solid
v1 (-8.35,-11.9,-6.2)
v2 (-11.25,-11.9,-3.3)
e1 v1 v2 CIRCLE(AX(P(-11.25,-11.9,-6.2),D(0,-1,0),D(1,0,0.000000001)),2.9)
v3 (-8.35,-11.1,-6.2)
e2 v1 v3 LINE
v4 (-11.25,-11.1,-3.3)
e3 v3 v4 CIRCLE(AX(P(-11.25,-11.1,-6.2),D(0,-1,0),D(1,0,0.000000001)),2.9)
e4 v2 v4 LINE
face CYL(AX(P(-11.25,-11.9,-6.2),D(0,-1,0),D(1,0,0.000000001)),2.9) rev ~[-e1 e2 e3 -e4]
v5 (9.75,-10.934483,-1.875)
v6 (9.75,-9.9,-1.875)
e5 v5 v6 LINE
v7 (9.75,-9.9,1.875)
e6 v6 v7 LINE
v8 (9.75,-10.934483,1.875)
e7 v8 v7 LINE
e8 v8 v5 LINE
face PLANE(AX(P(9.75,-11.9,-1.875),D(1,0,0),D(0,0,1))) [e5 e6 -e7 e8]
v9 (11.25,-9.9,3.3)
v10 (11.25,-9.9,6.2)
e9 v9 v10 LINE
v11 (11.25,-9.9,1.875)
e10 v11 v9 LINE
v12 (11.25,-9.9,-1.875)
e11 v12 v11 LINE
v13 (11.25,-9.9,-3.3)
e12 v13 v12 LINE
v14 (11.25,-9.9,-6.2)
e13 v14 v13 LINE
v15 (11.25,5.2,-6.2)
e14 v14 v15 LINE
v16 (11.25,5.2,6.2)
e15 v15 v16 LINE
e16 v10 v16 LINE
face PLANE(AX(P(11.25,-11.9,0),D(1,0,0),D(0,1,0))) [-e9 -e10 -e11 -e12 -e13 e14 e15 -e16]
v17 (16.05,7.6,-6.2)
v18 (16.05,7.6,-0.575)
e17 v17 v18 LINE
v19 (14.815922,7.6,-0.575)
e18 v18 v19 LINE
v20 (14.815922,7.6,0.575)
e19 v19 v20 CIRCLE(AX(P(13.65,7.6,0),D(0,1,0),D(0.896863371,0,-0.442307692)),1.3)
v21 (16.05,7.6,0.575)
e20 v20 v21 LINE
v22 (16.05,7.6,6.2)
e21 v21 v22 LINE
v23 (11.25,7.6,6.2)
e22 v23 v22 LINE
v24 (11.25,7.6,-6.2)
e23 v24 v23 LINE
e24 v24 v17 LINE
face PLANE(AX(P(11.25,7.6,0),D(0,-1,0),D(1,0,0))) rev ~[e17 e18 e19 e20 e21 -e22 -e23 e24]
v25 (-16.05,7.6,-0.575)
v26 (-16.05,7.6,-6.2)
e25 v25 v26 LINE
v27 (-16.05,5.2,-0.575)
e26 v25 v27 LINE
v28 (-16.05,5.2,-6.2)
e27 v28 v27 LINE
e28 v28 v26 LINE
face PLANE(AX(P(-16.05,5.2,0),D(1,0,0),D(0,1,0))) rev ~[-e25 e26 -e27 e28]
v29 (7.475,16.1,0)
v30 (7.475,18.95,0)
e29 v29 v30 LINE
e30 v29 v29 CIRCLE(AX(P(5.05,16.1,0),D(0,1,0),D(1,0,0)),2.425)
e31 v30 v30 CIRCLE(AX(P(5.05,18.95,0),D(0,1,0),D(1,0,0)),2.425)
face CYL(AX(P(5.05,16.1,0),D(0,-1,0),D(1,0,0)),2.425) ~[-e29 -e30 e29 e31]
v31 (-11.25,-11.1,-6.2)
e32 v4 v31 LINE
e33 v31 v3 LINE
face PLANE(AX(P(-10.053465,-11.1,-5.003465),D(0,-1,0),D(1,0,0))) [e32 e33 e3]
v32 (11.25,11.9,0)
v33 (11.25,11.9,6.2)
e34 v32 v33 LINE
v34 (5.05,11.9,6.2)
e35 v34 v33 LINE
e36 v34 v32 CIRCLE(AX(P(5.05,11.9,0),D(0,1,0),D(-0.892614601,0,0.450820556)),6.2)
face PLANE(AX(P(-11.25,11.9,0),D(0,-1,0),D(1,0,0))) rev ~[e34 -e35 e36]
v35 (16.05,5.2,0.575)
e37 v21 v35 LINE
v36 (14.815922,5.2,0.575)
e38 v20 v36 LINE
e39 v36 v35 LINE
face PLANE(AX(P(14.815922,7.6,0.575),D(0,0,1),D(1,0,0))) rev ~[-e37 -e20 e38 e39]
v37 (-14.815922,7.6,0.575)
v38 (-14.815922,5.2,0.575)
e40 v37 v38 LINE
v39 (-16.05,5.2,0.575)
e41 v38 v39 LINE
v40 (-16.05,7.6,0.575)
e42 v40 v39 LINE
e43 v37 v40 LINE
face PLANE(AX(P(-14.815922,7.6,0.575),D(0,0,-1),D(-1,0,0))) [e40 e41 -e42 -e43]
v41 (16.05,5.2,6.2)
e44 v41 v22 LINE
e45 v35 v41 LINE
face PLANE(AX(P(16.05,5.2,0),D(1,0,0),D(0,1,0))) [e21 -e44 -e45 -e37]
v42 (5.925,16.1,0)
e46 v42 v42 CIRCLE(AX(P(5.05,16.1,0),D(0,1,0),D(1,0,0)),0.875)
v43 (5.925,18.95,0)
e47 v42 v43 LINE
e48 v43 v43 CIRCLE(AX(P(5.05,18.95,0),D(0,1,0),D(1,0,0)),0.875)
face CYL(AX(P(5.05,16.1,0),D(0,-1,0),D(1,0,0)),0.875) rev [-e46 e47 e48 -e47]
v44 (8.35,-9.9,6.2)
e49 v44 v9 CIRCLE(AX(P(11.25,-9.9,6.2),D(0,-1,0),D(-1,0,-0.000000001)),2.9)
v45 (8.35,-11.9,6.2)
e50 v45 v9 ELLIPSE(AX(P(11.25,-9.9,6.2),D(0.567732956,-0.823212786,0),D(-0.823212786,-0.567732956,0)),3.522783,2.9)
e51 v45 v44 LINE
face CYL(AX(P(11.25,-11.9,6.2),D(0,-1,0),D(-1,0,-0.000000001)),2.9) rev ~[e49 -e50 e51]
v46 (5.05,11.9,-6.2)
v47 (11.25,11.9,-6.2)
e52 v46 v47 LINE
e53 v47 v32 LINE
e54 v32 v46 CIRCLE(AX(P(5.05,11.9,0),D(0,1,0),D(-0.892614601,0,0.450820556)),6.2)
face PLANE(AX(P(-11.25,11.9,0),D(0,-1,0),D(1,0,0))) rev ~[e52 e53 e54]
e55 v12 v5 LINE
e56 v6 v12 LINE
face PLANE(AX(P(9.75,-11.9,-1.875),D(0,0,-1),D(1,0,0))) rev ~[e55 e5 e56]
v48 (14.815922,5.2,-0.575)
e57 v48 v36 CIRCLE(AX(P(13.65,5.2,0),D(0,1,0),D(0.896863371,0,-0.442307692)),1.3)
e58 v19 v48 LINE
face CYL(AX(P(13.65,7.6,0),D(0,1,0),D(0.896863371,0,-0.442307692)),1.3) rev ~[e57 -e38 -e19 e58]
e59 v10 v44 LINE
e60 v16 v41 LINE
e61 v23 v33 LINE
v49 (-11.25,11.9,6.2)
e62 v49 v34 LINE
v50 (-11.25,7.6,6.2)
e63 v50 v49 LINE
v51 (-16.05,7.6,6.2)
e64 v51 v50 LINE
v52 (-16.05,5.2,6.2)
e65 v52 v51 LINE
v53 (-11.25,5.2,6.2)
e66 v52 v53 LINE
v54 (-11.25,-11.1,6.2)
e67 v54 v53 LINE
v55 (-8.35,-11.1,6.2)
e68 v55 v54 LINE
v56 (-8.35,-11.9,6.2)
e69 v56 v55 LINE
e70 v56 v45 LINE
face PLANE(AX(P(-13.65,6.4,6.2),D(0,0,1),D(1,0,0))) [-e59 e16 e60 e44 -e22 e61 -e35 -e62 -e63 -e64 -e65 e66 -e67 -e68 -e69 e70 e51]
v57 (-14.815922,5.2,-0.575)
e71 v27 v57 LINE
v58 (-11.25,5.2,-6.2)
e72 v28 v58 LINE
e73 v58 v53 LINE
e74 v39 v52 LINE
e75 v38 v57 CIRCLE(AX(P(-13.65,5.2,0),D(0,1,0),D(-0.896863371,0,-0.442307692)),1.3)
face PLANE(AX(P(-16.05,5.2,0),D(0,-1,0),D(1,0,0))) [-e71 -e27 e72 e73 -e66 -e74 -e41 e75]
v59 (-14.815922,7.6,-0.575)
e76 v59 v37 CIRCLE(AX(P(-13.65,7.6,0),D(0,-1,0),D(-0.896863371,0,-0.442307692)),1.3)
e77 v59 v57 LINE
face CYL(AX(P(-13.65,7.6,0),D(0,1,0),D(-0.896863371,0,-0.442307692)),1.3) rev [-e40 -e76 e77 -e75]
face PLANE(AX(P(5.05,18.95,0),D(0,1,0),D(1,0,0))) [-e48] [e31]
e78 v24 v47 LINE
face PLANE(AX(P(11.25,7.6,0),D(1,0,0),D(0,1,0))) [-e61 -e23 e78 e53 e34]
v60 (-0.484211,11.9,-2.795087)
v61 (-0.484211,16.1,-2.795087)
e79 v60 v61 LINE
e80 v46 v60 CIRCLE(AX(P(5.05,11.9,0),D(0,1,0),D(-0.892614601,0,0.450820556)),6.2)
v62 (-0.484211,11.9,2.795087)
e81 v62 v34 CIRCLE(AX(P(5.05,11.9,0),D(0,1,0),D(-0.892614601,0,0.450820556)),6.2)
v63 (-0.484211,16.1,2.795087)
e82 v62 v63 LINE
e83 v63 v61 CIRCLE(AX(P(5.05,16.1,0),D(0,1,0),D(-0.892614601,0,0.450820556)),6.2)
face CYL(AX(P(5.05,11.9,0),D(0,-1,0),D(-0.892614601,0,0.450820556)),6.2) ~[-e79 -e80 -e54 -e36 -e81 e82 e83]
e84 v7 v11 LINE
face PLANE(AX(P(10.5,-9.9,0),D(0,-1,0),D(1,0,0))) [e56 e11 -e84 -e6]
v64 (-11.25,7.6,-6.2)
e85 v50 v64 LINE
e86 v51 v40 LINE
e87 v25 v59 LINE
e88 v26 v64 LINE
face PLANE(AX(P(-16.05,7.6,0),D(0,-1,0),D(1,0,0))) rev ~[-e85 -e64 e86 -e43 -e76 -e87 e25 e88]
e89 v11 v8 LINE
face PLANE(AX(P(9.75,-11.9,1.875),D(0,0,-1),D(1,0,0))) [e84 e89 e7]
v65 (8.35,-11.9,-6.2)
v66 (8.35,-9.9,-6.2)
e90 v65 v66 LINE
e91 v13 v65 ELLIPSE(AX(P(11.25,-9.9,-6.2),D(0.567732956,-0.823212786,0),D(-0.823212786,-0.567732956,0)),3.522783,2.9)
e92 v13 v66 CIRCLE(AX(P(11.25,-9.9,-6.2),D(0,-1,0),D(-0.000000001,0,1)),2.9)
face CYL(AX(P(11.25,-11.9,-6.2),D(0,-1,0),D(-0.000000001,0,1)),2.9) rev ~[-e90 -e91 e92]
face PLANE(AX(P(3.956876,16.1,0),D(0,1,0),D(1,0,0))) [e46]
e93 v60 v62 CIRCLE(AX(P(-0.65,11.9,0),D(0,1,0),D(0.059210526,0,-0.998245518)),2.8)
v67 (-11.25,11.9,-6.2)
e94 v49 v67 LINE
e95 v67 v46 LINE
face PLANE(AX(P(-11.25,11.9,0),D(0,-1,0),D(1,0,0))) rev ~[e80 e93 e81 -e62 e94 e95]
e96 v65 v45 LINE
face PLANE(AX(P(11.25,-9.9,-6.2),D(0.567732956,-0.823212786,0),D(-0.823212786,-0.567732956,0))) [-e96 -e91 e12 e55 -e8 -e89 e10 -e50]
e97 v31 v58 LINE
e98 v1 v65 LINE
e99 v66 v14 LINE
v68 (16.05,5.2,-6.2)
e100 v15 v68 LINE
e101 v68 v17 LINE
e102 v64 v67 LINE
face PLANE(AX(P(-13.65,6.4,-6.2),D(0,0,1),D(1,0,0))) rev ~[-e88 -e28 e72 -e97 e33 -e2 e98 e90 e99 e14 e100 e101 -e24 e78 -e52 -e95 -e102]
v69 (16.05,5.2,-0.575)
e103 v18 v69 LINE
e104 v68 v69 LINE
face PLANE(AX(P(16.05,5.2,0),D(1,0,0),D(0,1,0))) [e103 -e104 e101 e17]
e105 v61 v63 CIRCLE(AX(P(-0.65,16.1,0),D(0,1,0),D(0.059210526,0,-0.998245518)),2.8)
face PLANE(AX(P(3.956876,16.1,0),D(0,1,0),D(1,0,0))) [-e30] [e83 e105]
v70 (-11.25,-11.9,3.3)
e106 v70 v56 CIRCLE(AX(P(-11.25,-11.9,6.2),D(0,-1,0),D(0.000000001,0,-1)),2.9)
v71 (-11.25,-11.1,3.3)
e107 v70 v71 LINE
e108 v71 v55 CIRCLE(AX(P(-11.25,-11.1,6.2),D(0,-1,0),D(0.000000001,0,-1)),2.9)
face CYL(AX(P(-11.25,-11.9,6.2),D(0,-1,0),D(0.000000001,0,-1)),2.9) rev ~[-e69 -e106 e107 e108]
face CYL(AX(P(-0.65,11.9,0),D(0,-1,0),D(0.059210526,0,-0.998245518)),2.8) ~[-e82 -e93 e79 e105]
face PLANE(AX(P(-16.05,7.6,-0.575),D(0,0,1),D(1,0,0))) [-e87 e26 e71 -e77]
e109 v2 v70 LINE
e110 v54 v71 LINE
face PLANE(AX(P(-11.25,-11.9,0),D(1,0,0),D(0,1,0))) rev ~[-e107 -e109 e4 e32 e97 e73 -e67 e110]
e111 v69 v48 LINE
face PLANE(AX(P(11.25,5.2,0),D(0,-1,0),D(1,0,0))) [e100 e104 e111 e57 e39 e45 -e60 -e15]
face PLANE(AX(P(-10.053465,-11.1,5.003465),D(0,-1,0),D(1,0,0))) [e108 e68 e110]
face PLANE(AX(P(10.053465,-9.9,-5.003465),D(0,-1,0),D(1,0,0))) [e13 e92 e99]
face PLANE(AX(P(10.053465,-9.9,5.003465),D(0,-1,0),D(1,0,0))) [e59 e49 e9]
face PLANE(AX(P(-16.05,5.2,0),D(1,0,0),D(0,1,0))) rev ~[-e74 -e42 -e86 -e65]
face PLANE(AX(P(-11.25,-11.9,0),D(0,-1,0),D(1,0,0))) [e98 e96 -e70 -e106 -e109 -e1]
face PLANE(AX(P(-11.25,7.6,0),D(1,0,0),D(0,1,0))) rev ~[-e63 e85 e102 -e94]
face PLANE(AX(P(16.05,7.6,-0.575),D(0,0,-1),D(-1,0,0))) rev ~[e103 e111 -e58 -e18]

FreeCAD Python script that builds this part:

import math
import FreeCAD as App
import Part
import Sketcher

V = App.Vector


def add_polygon(sketch, points):
    """Adds a closed chain of lines whose ends are joined by coincident constraints."""
    first, n = sketch.GeometryCount, len(points)
    for a, b in zip(points, points[1:] + points[:1]):
        sketch.addGeometry(Part.LineSegment(App.Vector(*a, 0), App.Vector(*b, 0)), False)
    for i in range(n):
        sketch.addConstraint(Sketcher.Constraint("Coincident", first + i, 2, first + (i + 1) % n, 1))

doc = App.newDocument("Part")
params = doc.addObject("Spreadsheet::Sheet", "Params")
for row, (alias, value) in enumerate([
    ("sketch1_width", "4.8 mm"),
    ("sketch1_width2", "22.5 mm"),
    ("sketch1_height", "2.4 mm"),
    ("sketch1_height2", "17.1 mm"),
    ("sketch1_height3", "4.3 mm"),
    ("pad1_length", "12.4 mm"),
    ("sketch2_radius", "6.2 mm"),
    ("sketch2_radius2", "2.8 mm"),
    ("pad2_length", "4.2 mm"),
    ("sketch3_radius", "1.3 mm"),
    ("sketch3_height", "1.15 mm"),
    ("sketch4_radius", "1.3 mm"),
    ("sketch4_height", "1.15 mm"),
    ("sketch5_radius", "2.9 mm"),
    ("pocket3_length", "0.8 mm"),
    ("sketch6_radius", "2.9 mm"),
    ("sketch6_width", "1.5 mm"),
    ("sketch6_height", "3.75 mm"),
    ("pocket4_length", "2 mm"),
    ("sketch7_height", "2 mm"),
    ("sketch7_width", "2.9 mm"),
    ("sketch8_diameter", "4.85 mm"),
    ("sketch8_diameter2", "1.75 mm"),
    ("pad3_length", "2.85 mm"),
], start=1):
    params.set(f"A{row}", alias)
    params.set(f"B{row}", "=" + value)
    params.setAlias(f"B{row}", alias)

body = doc.addObject("PartDesign::Body", "Body")

sketch1 = body.newObject("Sketcher::SketchObject", "Sketch")
sketch1.AttachmentSupport = (doc.getObject("XY_Plane"), [""])
sketch1.MapMode = "FlatFace"
add_polygon(sketch1, [(-16.1, 7.6), (-16.1, 5.2), (-11.2, 5.2), (-11.2, -11.9), (11.2, -11.9), (11.2, 5.2), (16.1, 5.2), (16.1, 7.6), (11.2, 7.6), (11.2, 11.9), (-11.2, 11.9), (-11.2, 7.6)])
sketch1.addConstraint([
    Sketcher.Constraint("Vertical", 0),
    Sketcher.Constraint("Horizontal", 1),
    Sketcher.Constraint("Vertical", 2),
    Sketcher.Constraint("Horizontal", 3),
    Sketcher.Constraint("Vertical", 4),
    Sketcher.Constraint("Horizontal", 5),
    Sketcher.Constraint("Vertical", 6),
    Sketcher.Constraint("Horizontal", 7),
    Sketcher.Constraint("Vertical", 8),
    Sketcher.Constraint("Horizontal", 9),
    Sketcher.Constraint("Vertical", 10),
    Sketcher.Constraint("Horizontal", 11),
    Sketcher.Constraint("Symmetric", 2, 2, 8, 2, -1, 1),
    Sketcher.Constraint("Symmetric", 1, 2, 4, 2, -2),
    Sketcher.Constraint("Symmetric", 7, 2, 10, 2, -2),
    Sketcher.Constraint("Equal", 1, 5),
    Sketcher.Constraint("DistanceX", 1, 1, 1, 2, 4.8),
    Sketcher.Constraint("DistanceX", 3, 1, 3, 2, 22.5),
    Sketcher.Constraint("DistanceY", 0, 2, 0, 1, 2.4),
    Sketcher.Constraint("DistanceY", 2, 2, 2, 1, 17.1),
    Sketcher.Constraint("DistanceY", 8, 1, 8, 2, 4.3),
])
sketch1.setExpression("Constraints[28]", "Params.sketch1_width")
sketch1.setExpression("Constraints[29]", "Params.sketch1_width2")
sketch1.setExpression("Constraints[30]", "Params.sketch1_height")
sketch1.setExpression("Constraints[31]", "Params.sketch1_height2")
sketch1.setExpression("Constraints[32]", "Params.sketch1_height3")
pad1 = body.newObject("PartDesign::Pad", "Pad")
pad1.Profile = sketch1
pad1.setExpression("Length", "Params.pad1_length")
pad1.Midplane = True

sketch2 = body.newObject("Sketcher::SketchObject", "Sketch001")
sketch2.AttachmentSupport = (doc.getObject("XZ_Plane"), [""])
sketch2.MapMode = "FlatFace"
sketch2.AttachmentOffset = App.Placement(V(0, 0, -11.9), App.Rotation())
sketch2.addGeometry([
    Part.ArcOfCircle(Part.Circle(V(5, 0, 0), V(0, 0, 1), 6.2), math.radians(-153), math.radians(153)),
    Part.ArcOfCircle(Part.Circle(V(-0.7, 0, 0), V(0, 0, 1), 2.8), math.radians(87), math.radians(273)),
], False)
sketch2.addConstraint([
    Sketcher.Constraint("Coincident", 0, 1, 1, 2),
    Sketcher.Constraint("Coincident", 1, 1, 0, 2),
    Sketcher.Constraint("Symmetric", 0, 1, 1, 1, -1),
    Sketcher.Constraint("Radius", 0, 6.2),
    Sketcher.Constraint("Radius", 1, 2.8),
    Sketcher.Constraint("DistanceX", 1, 3, 0, 3, 5.7),
    Sketcher.Constraint("DistanceX", -1, 1, 0, 3, 5.05),
])
sketch2.setExpression("Constraints[3]", "Params.sketch2_radius")
sketch2.setExpression("Constraints[4]", "Params.sketch2_radius2")
pad2 = body.newObject("PartDesign::Pad", "Pad001")
pad2.Profile = sketch2
pad2.setExpression("Length", "Params.pad2_length")
pad2.Reversed = True

sketch3 = body.newObject("Sketcher::SketchObject", "Sketch002")
sketch3.AttachmentSupport = (doc.getObject("XZ_Plane"), [""])
sketch3.MapMode = "FlatFace"
sketch3.AttachmentOffset = App.Placement(V(0, 0, -7.6), App.Rotation())
sketch3.addGeometry([
    Part.LineSegment(V(16.1, -0.6, 0), V(14.8, -0.6, 0)),
    Part.ArcOfCircle(Part.Circle(V(13.7, 0, 0), V(0, 0, 1), 1.3), math.radians(26), math.radians(334)),
    Part.LineSegment(V(14.8, 0.6, 0), V(16.1, 0.6, 0)),
    Part.LineSegment(V(16.1, 0.6, 0), V(16.1, -0.6, 0)),
], False)
sketch3.addConstraint([
    Sketcher.Constraint("Coincident", 0, 2, 1, 2),
    Sketcher.Constraint("Coincident", 1, 1, 2, 1),
    Sketcher.Constraint("Coincident", 2, 2, 3, 1),
    Sketcher.Constraint("Coincident", 3, 2, 0, 1),
    Sketcher.Constraint("Horizontal", 0),
    Sketcher.Constraint("Horizontal", 2),
    Sketcher.Constraint("Vertical", 3),
    Sketcher.Constraint("Symmetric", 0, 2, 1, 1, -1),
    Sketcher.Constraint("Radius", 1, 1.3),
    Sketcher.Constraint("DistanceY", 3, 2, 3, 1, 1.15),
    Sketcher.Constraint("DistanceX", 1, 3, 2, 2, 2.4),
    Sketcher.Constraint("DistanceX", -1, 1, 1, 3, 13.65),
])
sketch3.setExpression("Constraints[8]", "Params.sketch3_radius")
sketch3.setExpression("Constraints[9]", "Params.sketch3_height")
pocket1 = body.newObject("PartDesign::Pocket", "Pocket")
pocket1.Profile = sketch3
pocket1.Type = "UpToFirst"
pocket1.Reversed = True

sketch4 = body.newObject("Sketcher::SketchObject", "Sketch003")
sketch4.AttachmentSupport = (doc.getObject("XZ_Plane"), [""])
sketch4.MapMode = "FlatFace"
sketch4.AttachmentOffset = App.Placement(V(0, 0, -7.6), App.Rotation())
sketch4.addGeometry([
    Part.LineSegment(V(-14.8, -0.6, 0), V(-16.1, -0.6, 0)),
    Part.LineSegment(V(-16.1, -0.6, 0), V(-16.1, 0.6, 0)),
    Part.LineSegment(V(-16.1, 0.6, 0), V(-14.8, 0.6, 0)),
    Part.ArcOfCircle(Part.Circle(V(-13.7, 0, 0), V(0, 0, 1), 1.3), math.radians(-154), math.radians(154)),
], False)
sketch4.addConstraint([
    Sketcher.Constraint("Coincident", 0, 2, 1, 1),
    Sketcher.Constraint("Coincident", 1, 2, 2, 1),
    Sketcher.Constraint("Coincident", 2, 2, 3, 2),
    Sketcher.Constraint("Coincident", 3, 1, 0, 1),
    Sketcher.Constraint("Horizontal", 0),
    Sketcher.Constraint("Vertical", 1),
    Sketcher.Constraint("Horizontal", 2),
    Sketcher.Constraint("Symmetric", 2, 2, 3, 1, -1),
    Sketcher.Constraint("Radius", 3, 1.3),
    Sketcher.Constraint("DistanceY", 1, 1, 1, 2, 1.15),
    Sketcher.Constraint("DistanceX", 0, 2, 3, 3, 2.4),
    Sketcher.Constraint("DistanceX", 3, 3, -1, 1, 13.65),
])
sketch4.setExpression("Constraints[8]", "Params.sketch4_radius")
sketch4.setExpression("Constraints[9]", "Params.sketch4_height")
pocket2 = body.newObject("PartDesign::Pocket", "Pocket001")
pocket2.Profile = sketch4
pocket2.Type = "UpToFirst"
pocket2.Reversed = True

sketch5 = body.newObject("Sketcher::SketchObject", "Sketch004")
sketch5.AttachmentSupport = (doc.getObject("XZ_Plane"), [""])
sketch5.MapMode = "FlatFace"
sketch5.AttachmentOffset = App.Placement(V(0, 0, 11.9), App.Rotation())
sketch5.addGeometry([
    Part.LineSegment(V(-11.2, 6.2, 0), V(-11.2, 3.3, 0)),
    Part.ArcOfCircle(Part.Circle(V(-11.3, 6.2, 0), V(0, 0, 1), 2.9), math.radians(-90), math.radians(0)),
    Part.LineSegment(V(-8.3, 6.2, 0), V(-11.2, 6.2, 0)),
    Part.ArcOfCircle(Part.Circle(V(-11.3, -6.2, 0), V(0, 0, 1), 2.9), math.radians(0), math.radians(90)),
    Part.LineSegment(V(-11.2, -3.3, 0), V(-11.2, -6.2, 0)),
    Part.LineSegment(V(-11.2, -6.2, 0), V(-8.3, -6.2, 0)),
], False)
sketch5.addConstraint([
    Sketcher.Constraint("Coincident", 0, 2, 1, 1),
    Sketcher.Constraint("Coincident", 1, 2, 2, 1),
    Sketcher.Constraint("Coincident", 2, 2, 0, 1),
    Sketcher.Constraint("Coincident", 3, 2, 4, 1),
    Sketcher.Constraint("Coincident", 4, 2, 5, 1),
    Sketcher.Constraint("Coincident", 5, 2, 3, 1),
    Sketcher.Constraint("Vertical", 0),
    Sketcher.Constraint("Horizontal", 2),
    Sketcher.Constraint("Vertical", 4),
    Sketcher.Constraint("Horizontal", 5),
    Sketcher.Constraint("Coincident", 2, 2, 1, 3),
    Sketcher.Constraint("Coincident", 4, 2, 3, 3),
    Sketcher.Constraint("Equal", 1, 3),
    Sketcher.Constraint("Symmetric", 1, 3, 3, 3, -1),
    Sketcher.Constraint("Radius", 1, 2.9),
    Sketcher.Constraint("DistanceY", -1, 1, 1, 3, 6.2),
    Sketcher.Constraint("DistanceX", 1, 3, -1, 1, 11.25),
])
sketch5.setExpression("Constraints[14]", "Params.sketch5_radius")
pocket3 = body.newObject("PartDesign::Pocket", "Pocket002")
pocket3.Profile = sketch5
pocket3.setExpression("Length", "Params.pocket3_length")

sketch6 = body.newObject("Sketcher::SketchObject", "Sketch005")
sketch6.AttachmentSupport = (doc.getObject("XZ_Plane"), [""])
sketch6.MapMode = "FlatFace"
sketch6.AttachmentOffset = App.Placement(V(0, 0, 11.9), App.Rotation())
sketch6.addGeometry(Part.LineSegment(V(11.2, 6.2, 0), V(8.3, 6.2, 0)), False)
sketch6.addGeometry(Part.ArcOfCircle(Part.Circle(V(11.3, 6.2, 0), V(0, 0, 1), 2.9), math.radians(-180), math.radians(-90)), False)
sketch6.addGeometry(Part.LineSegment(V(11.2, 3.3, 0), V(11.2, 6.2, 0)), False)
sketch6.addGeometry(Part.ArcOfCircle(Part.Circle(V(11.3, -6.2, 0), V(0, 0, 1), 2.9), math.radians(90), math.radians(180)), False)
sketch6.addGeometry(Part.LineSegment(V(8.3, -6.2, 0), V(11.2, -6.2, 0)), False)
sketch6.addGeometry(Part.LineSegment(V(11.2, -6.2, 0), V(11.2, -3.3, 0)), False)
add_polygon(sketch6, [(9.8, 1.9), (9.8, -1.9), (11.2, -1.9), (11.2, 1.9)])
sketch6.addConstraint([
    Sketcher.Constraint("Coincident", 0, 2, 1, 1),
    Sketcher.Constraint("Coincident", 1, 2, 2, 1),
    Sketcher.Constraint("Coincident", 2, 2, 0, 1),
    Sketcher.Constraint("Coincident", 3, 2, 4, 1),
    Sketcher.Constraint("Coincident", 4, 2, 5, 1),
    Sketcher.Constraint("Coincident", 5, 2, 3, 1),
    Sketcher.Constraint("Horizontal", 0),
    Sketcher.Constraint("Vertical", 2),
    Sketcher.Constraint("Horizontal", 4),
    Sketcher.Constraint("Vertical", 5),
    Sketcher.Constraint("Vertical", 6),
    Sketcher.Constraint("Horizontal", 7),
    Sketcher.Constraint("Vertical", 8),
    Sketcher.Constraint("Horizontal", 9),
    Sketcher.Constraint("Coincident", 2, 2, 1, 3),
    Sketcher.Constraint("Coincident", 4, 2, 3, 3),
    Sketcher.Constraint("Equal", 1, 3),
    Sketcher.Constraint("Symmetric", 1, 3, 3, 3, -1),
    Sketcher.Constraint("Vertical", 5, 2, 7, 2),
    Sketcher.Constraint("Radius", 1, 2.9),
    Sketcher.Constraint("DistanceX", 7, 1, 7, 2, 1.5),
    Sketcher.Constraint("DistanceY", 6, 2, 6, 1, 3.75),
    Sketcher.Constraint("DistanceY", -1, 1, 1, 3, 6.2),
    Sketcher.Constraint("DistanceX", -1, 1, 1, 3, 11.25),
    Sketcher.Constraint("DistanceY", 6, 2, -1, 1, 1.875),
])
sketch6.setExpression("Constraints[23]", "Params.sketch6_radius")
sketch6.setExpression("Constraints[24]", "Params.sketch6_width")
sketch6.setExpression("Constraints[25]", "Params.sketch6_height")
pocket4 = body.newObject("PartDesign::Pocket", "Pocket003")
pocket4.Profile = sketch6
pocket4.setExpression("Length", "Params.pocket4_length")

sketch7 = body.newObject("Sketcher::SketchObject", "Sketch006")
sketch7.AttachmentSupport = (doc.getObject("XY_Plane"), [""])
sketch7.MapMode = "FlatFace"
sketch7.AttachmentOffset = App.Placement(V(0, 0, -6.2), App.Rotation())
add_polygon(sketch7, [(8.3, -11.9), (11.2, -9.9), (11.2, -11.9)])
sketch7.addConstraint([
    Sketcher.Constraint("Vertical", 1),
    Sketcher.Constraint("Horizontal", 2),
    Sketcher.Constraint("DistanceY", 1, 2, 1, 1, 2.0),
    Sketcher.Constraint("DistanceX", 2, 2, 2, 1, 2.9),
    Sketcher.Constraint("DistanceY", 0, 2, -1, 1, 9.9),
    Sketcher.Constraint("DistanceX", -1, 1, 0, 2, 11.25),
])
sketch7.setExpression("Constraints[5]", "Params.sketch7_height")
sketch7.setExpression("Constraints[6]", "Params.sketch7_width")
pocket5 = body.newObject("PartDesign::Pocket", "Pocket004")
pocket5.Profile = sketch7
pocket5.Type = "ThroughAll"
pocket5.Reversed = True

sketch8 = body.newObject("Sketcher::SketchObject", "Sketch007")
sketch8.AttachmentSupport = (doc.getObject("XZ_Plane"), [""])
sketch8.MapMode = "FlatFace"
sketch8.AttachmentOffset = App.Placement(V(0, 0, -16.1), App.Rotation())
sketch8.addGeometry([
    Part.Circle(V(5, 0, 0), V(0, 0, 1), 2.4),
    Part.Circle(V(5, 0, 0), V(0, 0, 1), 0.9),
], False)
sketch8.addConstraint([
    Sketcher.Constraint("Coincident", 1, 3, 0, 3),
    Sketcher.Constraint("PointOnObject", 0, 3, -1),
    Sketcher.Constraint("Diameter", 0, 4.85),
    Sketcher.Constraint("Diameter", 1, 1.75),
    Sketcher.Constraint("DistanceX", -1, 1, 0, 3, 5.05),
])
sketch8.setExpression("Constraints[2]", "Params.sketch8_diameter")
sketch8.setExpression("Constraints[3]", "Params.sketch8_diameter2")
pad3 = body.newObject("PartDesign::Pad", "Pad002")
pad3.Profile = sketch8
pad3.setExpression("Length", "Params.pad3_length")
pad3.Reversed = True

doc.recompute()
